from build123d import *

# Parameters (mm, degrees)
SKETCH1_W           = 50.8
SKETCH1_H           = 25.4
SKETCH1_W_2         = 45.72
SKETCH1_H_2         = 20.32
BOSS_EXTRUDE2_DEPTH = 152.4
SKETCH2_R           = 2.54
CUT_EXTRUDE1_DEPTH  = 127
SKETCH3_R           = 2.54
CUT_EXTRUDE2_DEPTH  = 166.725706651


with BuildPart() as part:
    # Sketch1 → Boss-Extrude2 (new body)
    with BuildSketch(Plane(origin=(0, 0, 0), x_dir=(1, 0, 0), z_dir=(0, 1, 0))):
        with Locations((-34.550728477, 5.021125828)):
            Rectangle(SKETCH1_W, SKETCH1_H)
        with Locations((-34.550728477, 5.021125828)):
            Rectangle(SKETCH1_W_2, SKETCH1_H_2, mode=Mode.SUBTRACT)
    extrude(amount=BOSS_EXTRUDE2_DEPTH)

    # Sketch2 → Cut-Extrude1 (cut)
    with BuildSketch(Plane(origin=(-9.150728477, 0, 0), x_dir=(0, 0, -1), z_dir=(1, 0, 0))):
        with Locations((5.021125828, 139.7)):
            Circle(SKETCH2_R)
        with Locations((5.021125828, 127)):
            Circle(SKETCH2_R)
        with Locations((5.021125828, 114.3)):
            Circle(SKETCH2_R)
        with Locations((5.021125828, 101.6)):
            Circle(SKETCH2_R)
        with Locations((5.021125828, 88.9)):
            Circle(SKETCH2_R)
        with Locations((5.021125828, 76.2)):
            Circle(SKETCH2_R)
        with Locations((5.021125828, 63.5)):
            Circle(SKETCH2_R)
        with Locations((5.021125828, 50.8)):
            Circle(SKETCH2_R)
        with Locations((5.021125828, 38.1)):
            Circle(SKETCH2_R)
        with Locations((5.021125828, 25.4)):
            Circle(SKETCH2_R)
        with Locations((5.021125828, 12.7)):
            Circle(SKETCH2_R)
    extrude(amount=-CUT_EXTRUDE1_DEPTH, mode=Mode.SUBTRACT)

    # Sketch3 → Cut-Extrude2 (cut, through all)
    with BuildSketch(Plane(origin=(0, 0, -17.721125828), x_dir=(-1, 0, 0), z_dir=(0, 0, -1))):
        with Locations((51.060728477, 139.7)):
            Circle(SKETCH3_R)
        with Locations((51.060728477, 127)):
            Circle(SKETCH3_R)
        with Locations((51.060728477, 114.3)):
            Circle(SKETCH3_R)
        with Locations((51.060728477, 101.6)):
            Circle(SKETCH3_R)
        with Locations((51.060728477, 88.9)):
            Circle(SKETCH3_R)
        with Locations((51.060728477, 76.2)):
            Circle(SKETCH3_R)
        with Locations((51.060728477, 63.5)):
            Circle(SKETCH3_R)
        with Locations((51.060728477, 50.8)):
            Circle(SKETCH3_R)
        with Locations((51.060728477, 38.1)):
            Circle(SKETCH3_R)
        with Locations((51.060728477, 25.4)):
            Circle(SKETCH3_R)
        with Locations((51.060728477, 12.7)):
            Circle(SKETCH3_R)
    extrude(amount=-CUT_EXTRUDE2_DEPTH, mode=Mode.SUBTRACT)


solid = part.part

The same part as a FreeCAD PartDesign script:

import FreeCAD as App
import Part
import Sketcher
from FreeCAD import Vector
Q = App.Units.Quantity

doc = App.newDocument("Part")
body = doc.addObject("PartDesign::Body", "Body")

# Sketch on XZ plane
sketch1 = body.newObject("Sketcher::SketchObject", "Sketch")
sketch1.AttachmentSupport = (doc.getObject("XZ_Plane"), [""])
sketch1.MapMode = "FlatFace"
sketch1.addGeometry([
    Part.LineSegment(Vector(-59.950728, -17.721126, 0), Vector(-59.950728, 7.678874, 0)),  # 0
    Part.LineSegment(Vector(-59.950728, 7.678874, 0), Vector(-9.150728, 7.678874, 0)),  # 1
    Part.LineSegment(Vector(-9.150728, 7.678874, 0), Vector(-9.150728, -17.721126, 0)),  # 2
    Part.LineSegment(Vector(-9.150728, -17.721126, 0), Vector(-59.950728, -17.721126, 0)),  # 3
    Part.LineSegment(Vector(-11.690728, 5.138874, 0), Vector(-57.410728, 5.138874, 0)),  # 4
    Part.LineSegment(Vector(-57.410728, 5.138874, 0), Vector(-57.410728, -15.181126, 0)),  # 5
    Part.LineSegment(Vector(-57.410728, -15.181126, 0), Vector(-11.690728, -15.181126, 0)),  # 6
    Part.LineSegment(Vector(-11.690728, -15.181126, 0), Vector(-11.690728, 5.138874, 0)),  # 7
], False)
sketch1.addConstraint([
    Sketcher.Constraint("Coincident", 0, 2, 1, 1),
    Sketcher.Constraint("Coincident", 1, 2, 2, 1),
    Sketcher.Constraint("Coincident", 2, 2, 3, 1),
    Sketcher.Constraint("Coincident", 3, 2, 0, 1),
    Sketcher.Constraint("Coincident", 4, 2, 5, 1),
    Sketcher.Constraint("Coincident", 5, 2, 6, 1),
    Sketcher.Constraint("Coincident", 6, 2, 7, 1),
    Sketcher.Constraint("Coincident", 7, 2, 4, 1),
    Sketcher.Constraint("Vertical", 0),
    Sketcher.Constraint("Horizontal", 1),
    Sketcher.Constraint("Vertical", 2),
    Sketcher.Constraint("Horizontal", 3),
    Sketcher.Constraint("Horizontal", 4),
    Sketcher.Constraint("Vertical", 5),
    Sketcher.Constraint("Horizontal", 6),
    Sketcher.Constraint("Vertical", 7),
    Sketcher.Constraint("DistanceX", 1, 1, 1, 2, Q("2 in")),
    Sketcher.Constraint("DistanceY", 0, 1, 0, 2, Q("1 in")),
    Sketcher.Constraint("DistanceX", 4, 2, 4, 1, Q("1.8 in")),
    Sketcher.Constraint("DistanceY", 5, 2, 5, 1, Q("0.8 in")),
    Sketcher.Constraint("DistanceX", 0, 2, 4, 2, Q("0.1 in")),
    Sketcher.Constraint("DistanceY", 4, 2, 0, 2, Q("0.1 in")),
    Sketcher.Constraint("DistanceX", 0, 2, -1, 1, Q("59.950728 mm")),
    Sketcher.Constraint("DistanceY", -1, 1, 0, 2, Q("7.678874 mm")),
])
pad1 = body.newObject("PartDesign::Pad", "Pad")
pad1.Profile = sketch1
pad1.Length = Q("6 in")
pad1.Reversed = True

# Sketch on YZ plane
sketch2 = body.newObject("Sketcher::SketchObject", "Sketch001")
sketch2.AttachmentSupport = (doc.getObject("YZ_Plane"), [""])
sketch2.MapMode = "FlatFace"
sketch2.AttachmentOffset = App.Placement(Vector(0, 0, -9.150728), App.Rotation())
sketch2.addGeometry([
    Part.Circle(Vector(139.7, -5.021126, 0), Vector(0, 0, 1), 2.54),  # 0
    Part.Circle(Vector(127, -5.021126, 0), Vector(0, 0, 1), 2.54),  # 1
    Part.Circle(Vector(114.3, -5.021126, 0), Vector(0, 0, 1), 2.54),  # 2
    Part.Circle(Vector(101.6, -5.021126, 0), Vector(0, 0, 1), 2.54),  # 3
    Part.Circle(Vector(88.9, -5.021126, 0), Vector(0, 0, 1), 2.54),  # 4
    Part.Circle(Vector(76.2, -5.021126, 0), Vector(0, 0, 1), 2.54),  # 5
    Part.Circle(Vector(63.5, -5.021126, 0), Vector(0, 0, 1), 2.54),  # 6
    Part.Circle(Vector(50.8, -5.021126, 0), Vector(0, 0, 1), 2.54),  # 7
    Part.Circle(Vector(38.1, -5.021126, 0), Vector(0, 0, 1), 2.54),  # 8
    Part.Circle(Vector(25.4, -5.021126, 0), Vector(0, 0, 1), 2.54),  # 9
    Part.Circle(Vector(12.7, -5.021126, 0), Vector(0, 0, 1), 2.54),  # 10
], False)
sketch2.addConstraint([
    Sketcher.Constraint("Equal", 0, 1),
    Sketcher.Constraint("Equal", 1, 2),
    Sketcher.Constraint("Equal", 2, 3),
    Sketcher.Constraint("Equal", 3, 4),
    Sketcher.Constraint("Equal", 4, 5),
    Sketcher.Constraint("Equal", 5, 6),
    Sketcher.Constraint("Equal", 6, 7),
    Sketcher.Constraint("Equal", 7, 8),
    Sketcher.Constraint("Equal", 8, 9),
    Sketcher.Constraint("Equal", 9, 10),
    Sketcher.Constraint("Horizontal", 0, 3, 1, 3),
    Sketcher.Constraint("Horizontal", 1, 3, 2, 3),
    Sketcher.Constraint("Horizontal", 2, 3, 3, 3),
    Sketcher.Constraint("Horizontal", 3, 3, 4, 3),
    Sketcher.Constraint("Horizontal", 4, 3, 5, 3),
    Sketcher.Constraint("Horizontal", 5, 3, 6, 3),
    Sketcher.Constraint("Horizontal", 6, 3, 7, 3),
    Sketcher.Constraint("Horizontal", 7, 3, 8, 3),
    Sketcher.Constraint("Horizontal", 8, 3, 9, 3),
    Sketcher.Constraint("Horizontal", 9, 3, 10, 3),
    Sketcher.Constraint("Diameter", 0, Q("0.2 in")),
    Sketcher.Constraint("DistanceX", -1, 1, 1, 3, Q("5 in")),
    Sketcher.Constraint("DistanceX", -1, 1, 3, 3, Q("4 in")),
    Sketcher.Constraint("DistanceX", -1, 1, 5, 3, Q("3 in")),
    Sketcher.Constraint("DistanceX", -1, 1, 7, 3, Q("2 in")),
    Sketcher.Constraint("DistanceX", -1, 1, 9, 3, Q("1 in")),
    Sketcher.Constraint("DistanceX", 2, 3, 0, 3, Q("1 in")),
    Sketcher.Constraint("DistanceX", 4, 3, 2, 3, Q("1 in")),
    Sketcher.Constraint("DistanceX", 6, 3, 4, 3, Q("1 in")),
    Sketcher.Constraint("DistanceX", 8, 3, 6, 3, Q("1 in")),
    Sketcher.Constraint("DistanceX", 10, 3, 8, 3, Q("1 in")),
    Sketcher.Constraint("DistanceX", -1, 1, 0, 3, Q("5.5 in")),
    Sketcher.Constraint("DistanceY", 0, 3, -1, 1, Q("5.021126 mm")),
])
pocket1 = body.newObject("PartDesign::Pocket", "Pocket")
pocket1.Profile = sketch2
pocket1.Length = Q("5 in")

# Sketch on XY plane
sketch3 = body.newObject("Sketcher::SketchObject", "Sketch002")
sketch3.AttachmentSupport = (doc.getObject("XY_Plane"), [""])
sketch3.MapMode = "FlatFace"
sketch3.AttachmentOffset = App.Placement(Vector(0, 0, -17.721126), App.Rotation())
sketch3.addGeometry([
    Part.Circle(Vector(-51.060728, 139.7, 0), Vector(0, 0, 1), 2.54),  # 0
    Part.Circle(Vector(-51.060728, 127, 0), Vector(0, 0, 1), 2.54),  # 1
    Part.Circle(Vector(-51.060728, 114.3, 0), Vector(0, 0, 1), 2.54),  # 2
    Part.Circle(Vector(-51.060728, 101.6, 0), Vector(0, 0, 1), 2.54),  # 3
    Part.Circle(Vector(-51.060728, 88.9, 0), Vector(0, 0, 1), 2.54),  # 4
    Part.Circle(Vector(-51.060728, 76.2, 0), Vector(0, 0, 1), 2.54),  # 5
    Part.Circle(Vector(-51.060728, 63.5, 0), Vector(0, 0, 1), 2.54),  # 6
    Part.Circle(Vector(-51.060728, 50.8, 0), Vector(0, 0, 1), 2.54),  # 7
    Part.Circle(Vector(-51.060728, 38.1, 0), Vector(0, 0, 1), 2.54),  # 8
    Part.Circle(Vector(-51.060728, 25.4, 0), Vector(0, 0, 1), 2.54),  # 9
    Part.Circle(Vector(-51.060728, 12.7, 0), Vector(0, 0, 1), 2.54),  # 10
], False)
sketch3.addConstraint([
    Sketcher.Constraint("Equal", 0, 1),
    Sketcher.Constraint("Equal", 1, 2),
    Sketcher.Constraint("Equal", 2, 3),
    Sketcher.Constraint("Equal", 3, 4),
    Sketcher.Constraint("Equal", 4, 5),
    Sketcher.Constraint("Equal", 5, 6),
    Sketcher.Constraint("Equal", 6, 7),
    Sketcher.Constraint("Equal", 7, 8),
    Sketcher.Constraint("Equal", 8, 9),
    Sketcher.Constraint("Equal", 9, 10),
    Sketcher.Constraint("Vertical", 0, 3, 1, 3),
    Sketcher.Constraint("Vertical", 1, 3, 2, 3),
    Sketcher.Constraint("Vertical", 2, 3, 3, 3),
    Sketcher.Constraint("Vertical", 3, 3, 4, 3),
    Sketcher.Constraint("Vertical", 4, 3, 5, 3),
    Sketcher.Constraint("Vertical", 5, 3, 6, 3),
    Sketcher.Constraint("Vertical", 6, 3, 7, 3),
    Sketcher.Constraint("Vertical", 7, 3, 8, 3),
    Sketcher.Constraint("Vertical", 8, 3, 9, 3),
    Sketcher.Constraint("Vertical", 9, 3, 10, 3),
    Sketcher.Constraint("Diameter", 0, Q("0.2 in")),
    Sketcher.Constraint("DistanceY", -1, 1, 1, 3, Q("5 in")),
    Sketcher.Constraint("DistanceY", -1, 1, 3, 3, Q("4 in")),
    Sketcher.Constraint("DistanceY", -1, 1, 5, 3, Q("3 in")),
    Sketcher.Constraint("DistanceY", -1, 1, 7, 3, Q("2 in")),
    Sketcher.Constraint("DistanceY", -1, 1, 9, 3, Q("1 in")),
    Sketcher.Constraint("DistanceY", 2, 3, 0, 3, Q("1 in")),
    Sketcher.Constraint("DistanceY", 4, 3, 2, 3, Q("1 in")),
    Sketcher.Constraint("DistanceY", 6, 3, 4, 3, Q("1 in")),
    Sketcher.Constraint("DistanceY", 8, 3, 6, 3, Q("1 in")),
    Sketcher.Constraint("DistanceY", 10, 3, 8, 3, Q("1 in")),
    Sketcher.Constraint("DistanceY", -1, 1, 0, 3, Q("5.5 in")),
    Sketcher.Constraint("DistanceX", 0, 3, -1, 1, Q("51.060728 mm")),
])
pocket2 = body.newObject("PartDesign::Pocket", "Pocket001")
pocket2.Profile = sketch3
pocket2.Type = "ThroughAll"
pocket2.Reversed = True

doc.recompute()
